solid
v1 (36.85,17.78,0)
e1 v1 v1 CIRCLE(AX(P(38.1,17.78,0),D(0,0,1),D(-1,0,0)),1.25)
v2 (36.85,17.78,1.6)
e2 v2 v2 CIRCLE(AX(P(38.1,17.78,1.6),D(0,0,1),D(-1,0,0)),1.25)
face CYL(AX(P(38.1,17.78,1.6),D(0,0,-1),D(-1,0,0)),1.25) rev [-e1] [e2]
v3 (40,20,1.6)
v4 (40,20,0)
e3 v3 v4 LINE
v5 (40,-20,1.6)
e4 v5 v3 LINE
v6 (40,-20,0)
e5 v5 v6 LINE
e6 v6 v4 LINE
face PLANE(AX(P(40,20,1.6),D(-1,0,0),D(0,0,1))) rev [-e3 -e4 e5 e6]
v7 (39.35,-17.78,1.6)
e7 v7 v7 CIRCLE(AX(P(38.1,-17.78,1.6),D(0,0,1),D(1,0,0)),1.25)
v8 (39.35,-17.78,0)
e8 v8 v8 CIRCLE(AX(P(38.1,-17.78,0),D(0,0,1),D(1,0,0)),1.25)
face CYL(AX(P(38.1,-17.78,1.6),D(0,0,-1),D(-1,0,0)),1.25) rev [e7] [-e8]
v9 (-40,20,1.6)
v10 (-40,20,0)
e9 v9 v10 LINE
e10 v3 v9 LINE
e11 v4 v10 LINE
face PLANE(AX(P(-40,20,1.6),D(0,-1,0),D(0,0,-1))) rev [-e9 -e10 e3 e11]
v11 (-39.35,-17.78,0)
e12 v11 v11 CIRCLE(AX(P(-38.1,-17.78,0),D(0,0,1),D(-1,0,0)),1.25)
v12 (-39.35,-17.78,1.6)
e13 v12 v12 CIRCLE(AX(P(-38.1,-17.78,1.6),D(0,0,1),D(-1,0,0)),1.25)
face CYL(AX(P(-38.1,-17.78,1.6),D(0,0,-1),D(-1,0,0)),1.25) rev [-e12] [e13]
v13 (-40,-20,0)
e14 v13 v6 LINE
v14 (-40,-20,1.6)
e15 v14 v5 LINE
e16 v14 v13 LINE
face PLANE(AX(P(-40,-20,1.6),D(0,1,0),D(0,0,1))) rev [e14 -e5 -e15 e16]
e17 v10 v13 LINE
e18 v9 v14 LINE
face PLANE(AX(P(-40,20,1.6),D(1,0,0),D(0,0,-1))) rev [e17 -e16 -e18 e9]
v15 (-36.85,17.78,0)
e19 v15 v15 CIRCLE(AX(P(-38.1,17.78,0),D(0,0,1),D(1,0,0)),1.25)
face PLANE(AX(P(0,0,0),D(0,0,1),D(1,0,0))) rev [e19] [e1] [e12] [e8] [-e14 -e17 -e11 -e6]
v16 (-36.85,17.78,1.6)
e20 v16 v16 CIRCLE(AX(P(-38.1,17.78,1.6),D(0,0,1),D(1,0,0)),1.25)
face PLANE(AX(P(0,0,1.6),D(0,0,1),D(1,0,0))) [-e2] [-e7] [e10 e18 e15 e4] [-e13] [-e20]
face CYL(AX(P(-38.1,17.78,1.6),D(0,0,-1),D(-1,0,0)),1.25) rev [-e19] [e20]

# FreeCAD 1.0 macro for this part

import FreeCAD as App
import Part
import Sketcher

V = App.Vector


def add_polygon(sketch, points):
    """Adds a closed chain of lines whose ends are joined by coincident constraints."""
    first, n = sketch.GeometryCount, len(points)
    for a, b in zip(points, points[1:] + points[:1]):
        sketch.addGeometry(Part.LineSegment(App.Vector(*a, 0), App.Vector(*b, 0)), False)
    for i in range(n):
        sketch.addConstraint(Sketcher.Constraint("Coincident", first + i, 2, first + (i + 1) % n, 1))

doc = App.newDocument("Part")
body = doc.addObject("PartDesign::Body", "Body")

# Sketch on XY plane
sketch1 = body.newObject("Sketcher::SketchObject", "Sketch")
sketch1.AttachmentSupport = (doc.getObject("XY_Plane"), [""])
sketch1.MapMode = "FlatFace"
add_polygon(sketch1, [(-40, 20), (-40, -20), (40, -20), (40, 20)])  # lines 0-3
sketch1.addGeometry(Part.Circle(V(-38.1, -17.8, 0), V(0, 0, 1), 1.2), False)  # 4
sketch1.addGeometry(Part.Circle(V(38.1, -17.8, 0), V(0, 0, 1), 1.2), False)  # 5
sketch1.addGeometry(Part.Circle(V(-38.1, 17.8, 0), V(0, 0, 1), 1.2), False)  # 6
sketch1.addGeometry(Part.Circle(V(38.1, 17.8, 0), V(0, 0, 1), 1.2), False)  # 7
sketch1.addConstraint(Sketcher.Constraint("Vertical", 0))
sketch1.addConstraint(Sketcher.Constraint("Horizontal", 1))
sketch1.addConstraint(Sketcher.Constraint("Vertical", 2))
sketch1.addConstraint(Sketcher.Constraint("Horizontal", 3))
sketch1.addConstraint(Sketcher.Constraint("Equal", 4, 5))
sketch1.addConstraint(Sketcher.Constraint("Equal", 5, 6))
sketch1.addConstraint(Sketcher.Constraint("Equal", 6, 7))
sketch1.addConstraint(Sketcher.Constraint("Symmetric", 5, 3, 6, 3, -1, 1))
sketch1.addConstraint(Sketcher.Constraint("Symmetric", 4, 3, 7, 3, -1, 1))
sketch1.addConstraint(Sketcher.Constraint("Symmetric", 0, 2, 2, 2, -1, 1))
sketch1.addConstraint(Sketcher.Constraint("Symmetric", 4, 3, 5, 3, -2))
sketch1.addConstraint(Sketcher.Constraint("Diameter", 4, 2.5))
sketch1.addConstraint(Sketcher.Constraint("DistanceX", 1, 1, 1, 2, 80.0))
sketch1.addConstraint(Sketcher.Constraint("DistanceY", 0, 2, 0, 1, 40.0))
sketch1.addConstraint(Sketcher.Constraint("DistanceX", 4, 3, -1, 1, 38.1))
sketch1.addConstraint(Sketcher.Constraint("DistanceY", 4, 3, -1, 1, 17.78))
pad1 = body.newObject("PartDesign::Pad", "Pad")
pad1.Profile = sketch1
pad1.Length = 1.6

doc.recompute()
